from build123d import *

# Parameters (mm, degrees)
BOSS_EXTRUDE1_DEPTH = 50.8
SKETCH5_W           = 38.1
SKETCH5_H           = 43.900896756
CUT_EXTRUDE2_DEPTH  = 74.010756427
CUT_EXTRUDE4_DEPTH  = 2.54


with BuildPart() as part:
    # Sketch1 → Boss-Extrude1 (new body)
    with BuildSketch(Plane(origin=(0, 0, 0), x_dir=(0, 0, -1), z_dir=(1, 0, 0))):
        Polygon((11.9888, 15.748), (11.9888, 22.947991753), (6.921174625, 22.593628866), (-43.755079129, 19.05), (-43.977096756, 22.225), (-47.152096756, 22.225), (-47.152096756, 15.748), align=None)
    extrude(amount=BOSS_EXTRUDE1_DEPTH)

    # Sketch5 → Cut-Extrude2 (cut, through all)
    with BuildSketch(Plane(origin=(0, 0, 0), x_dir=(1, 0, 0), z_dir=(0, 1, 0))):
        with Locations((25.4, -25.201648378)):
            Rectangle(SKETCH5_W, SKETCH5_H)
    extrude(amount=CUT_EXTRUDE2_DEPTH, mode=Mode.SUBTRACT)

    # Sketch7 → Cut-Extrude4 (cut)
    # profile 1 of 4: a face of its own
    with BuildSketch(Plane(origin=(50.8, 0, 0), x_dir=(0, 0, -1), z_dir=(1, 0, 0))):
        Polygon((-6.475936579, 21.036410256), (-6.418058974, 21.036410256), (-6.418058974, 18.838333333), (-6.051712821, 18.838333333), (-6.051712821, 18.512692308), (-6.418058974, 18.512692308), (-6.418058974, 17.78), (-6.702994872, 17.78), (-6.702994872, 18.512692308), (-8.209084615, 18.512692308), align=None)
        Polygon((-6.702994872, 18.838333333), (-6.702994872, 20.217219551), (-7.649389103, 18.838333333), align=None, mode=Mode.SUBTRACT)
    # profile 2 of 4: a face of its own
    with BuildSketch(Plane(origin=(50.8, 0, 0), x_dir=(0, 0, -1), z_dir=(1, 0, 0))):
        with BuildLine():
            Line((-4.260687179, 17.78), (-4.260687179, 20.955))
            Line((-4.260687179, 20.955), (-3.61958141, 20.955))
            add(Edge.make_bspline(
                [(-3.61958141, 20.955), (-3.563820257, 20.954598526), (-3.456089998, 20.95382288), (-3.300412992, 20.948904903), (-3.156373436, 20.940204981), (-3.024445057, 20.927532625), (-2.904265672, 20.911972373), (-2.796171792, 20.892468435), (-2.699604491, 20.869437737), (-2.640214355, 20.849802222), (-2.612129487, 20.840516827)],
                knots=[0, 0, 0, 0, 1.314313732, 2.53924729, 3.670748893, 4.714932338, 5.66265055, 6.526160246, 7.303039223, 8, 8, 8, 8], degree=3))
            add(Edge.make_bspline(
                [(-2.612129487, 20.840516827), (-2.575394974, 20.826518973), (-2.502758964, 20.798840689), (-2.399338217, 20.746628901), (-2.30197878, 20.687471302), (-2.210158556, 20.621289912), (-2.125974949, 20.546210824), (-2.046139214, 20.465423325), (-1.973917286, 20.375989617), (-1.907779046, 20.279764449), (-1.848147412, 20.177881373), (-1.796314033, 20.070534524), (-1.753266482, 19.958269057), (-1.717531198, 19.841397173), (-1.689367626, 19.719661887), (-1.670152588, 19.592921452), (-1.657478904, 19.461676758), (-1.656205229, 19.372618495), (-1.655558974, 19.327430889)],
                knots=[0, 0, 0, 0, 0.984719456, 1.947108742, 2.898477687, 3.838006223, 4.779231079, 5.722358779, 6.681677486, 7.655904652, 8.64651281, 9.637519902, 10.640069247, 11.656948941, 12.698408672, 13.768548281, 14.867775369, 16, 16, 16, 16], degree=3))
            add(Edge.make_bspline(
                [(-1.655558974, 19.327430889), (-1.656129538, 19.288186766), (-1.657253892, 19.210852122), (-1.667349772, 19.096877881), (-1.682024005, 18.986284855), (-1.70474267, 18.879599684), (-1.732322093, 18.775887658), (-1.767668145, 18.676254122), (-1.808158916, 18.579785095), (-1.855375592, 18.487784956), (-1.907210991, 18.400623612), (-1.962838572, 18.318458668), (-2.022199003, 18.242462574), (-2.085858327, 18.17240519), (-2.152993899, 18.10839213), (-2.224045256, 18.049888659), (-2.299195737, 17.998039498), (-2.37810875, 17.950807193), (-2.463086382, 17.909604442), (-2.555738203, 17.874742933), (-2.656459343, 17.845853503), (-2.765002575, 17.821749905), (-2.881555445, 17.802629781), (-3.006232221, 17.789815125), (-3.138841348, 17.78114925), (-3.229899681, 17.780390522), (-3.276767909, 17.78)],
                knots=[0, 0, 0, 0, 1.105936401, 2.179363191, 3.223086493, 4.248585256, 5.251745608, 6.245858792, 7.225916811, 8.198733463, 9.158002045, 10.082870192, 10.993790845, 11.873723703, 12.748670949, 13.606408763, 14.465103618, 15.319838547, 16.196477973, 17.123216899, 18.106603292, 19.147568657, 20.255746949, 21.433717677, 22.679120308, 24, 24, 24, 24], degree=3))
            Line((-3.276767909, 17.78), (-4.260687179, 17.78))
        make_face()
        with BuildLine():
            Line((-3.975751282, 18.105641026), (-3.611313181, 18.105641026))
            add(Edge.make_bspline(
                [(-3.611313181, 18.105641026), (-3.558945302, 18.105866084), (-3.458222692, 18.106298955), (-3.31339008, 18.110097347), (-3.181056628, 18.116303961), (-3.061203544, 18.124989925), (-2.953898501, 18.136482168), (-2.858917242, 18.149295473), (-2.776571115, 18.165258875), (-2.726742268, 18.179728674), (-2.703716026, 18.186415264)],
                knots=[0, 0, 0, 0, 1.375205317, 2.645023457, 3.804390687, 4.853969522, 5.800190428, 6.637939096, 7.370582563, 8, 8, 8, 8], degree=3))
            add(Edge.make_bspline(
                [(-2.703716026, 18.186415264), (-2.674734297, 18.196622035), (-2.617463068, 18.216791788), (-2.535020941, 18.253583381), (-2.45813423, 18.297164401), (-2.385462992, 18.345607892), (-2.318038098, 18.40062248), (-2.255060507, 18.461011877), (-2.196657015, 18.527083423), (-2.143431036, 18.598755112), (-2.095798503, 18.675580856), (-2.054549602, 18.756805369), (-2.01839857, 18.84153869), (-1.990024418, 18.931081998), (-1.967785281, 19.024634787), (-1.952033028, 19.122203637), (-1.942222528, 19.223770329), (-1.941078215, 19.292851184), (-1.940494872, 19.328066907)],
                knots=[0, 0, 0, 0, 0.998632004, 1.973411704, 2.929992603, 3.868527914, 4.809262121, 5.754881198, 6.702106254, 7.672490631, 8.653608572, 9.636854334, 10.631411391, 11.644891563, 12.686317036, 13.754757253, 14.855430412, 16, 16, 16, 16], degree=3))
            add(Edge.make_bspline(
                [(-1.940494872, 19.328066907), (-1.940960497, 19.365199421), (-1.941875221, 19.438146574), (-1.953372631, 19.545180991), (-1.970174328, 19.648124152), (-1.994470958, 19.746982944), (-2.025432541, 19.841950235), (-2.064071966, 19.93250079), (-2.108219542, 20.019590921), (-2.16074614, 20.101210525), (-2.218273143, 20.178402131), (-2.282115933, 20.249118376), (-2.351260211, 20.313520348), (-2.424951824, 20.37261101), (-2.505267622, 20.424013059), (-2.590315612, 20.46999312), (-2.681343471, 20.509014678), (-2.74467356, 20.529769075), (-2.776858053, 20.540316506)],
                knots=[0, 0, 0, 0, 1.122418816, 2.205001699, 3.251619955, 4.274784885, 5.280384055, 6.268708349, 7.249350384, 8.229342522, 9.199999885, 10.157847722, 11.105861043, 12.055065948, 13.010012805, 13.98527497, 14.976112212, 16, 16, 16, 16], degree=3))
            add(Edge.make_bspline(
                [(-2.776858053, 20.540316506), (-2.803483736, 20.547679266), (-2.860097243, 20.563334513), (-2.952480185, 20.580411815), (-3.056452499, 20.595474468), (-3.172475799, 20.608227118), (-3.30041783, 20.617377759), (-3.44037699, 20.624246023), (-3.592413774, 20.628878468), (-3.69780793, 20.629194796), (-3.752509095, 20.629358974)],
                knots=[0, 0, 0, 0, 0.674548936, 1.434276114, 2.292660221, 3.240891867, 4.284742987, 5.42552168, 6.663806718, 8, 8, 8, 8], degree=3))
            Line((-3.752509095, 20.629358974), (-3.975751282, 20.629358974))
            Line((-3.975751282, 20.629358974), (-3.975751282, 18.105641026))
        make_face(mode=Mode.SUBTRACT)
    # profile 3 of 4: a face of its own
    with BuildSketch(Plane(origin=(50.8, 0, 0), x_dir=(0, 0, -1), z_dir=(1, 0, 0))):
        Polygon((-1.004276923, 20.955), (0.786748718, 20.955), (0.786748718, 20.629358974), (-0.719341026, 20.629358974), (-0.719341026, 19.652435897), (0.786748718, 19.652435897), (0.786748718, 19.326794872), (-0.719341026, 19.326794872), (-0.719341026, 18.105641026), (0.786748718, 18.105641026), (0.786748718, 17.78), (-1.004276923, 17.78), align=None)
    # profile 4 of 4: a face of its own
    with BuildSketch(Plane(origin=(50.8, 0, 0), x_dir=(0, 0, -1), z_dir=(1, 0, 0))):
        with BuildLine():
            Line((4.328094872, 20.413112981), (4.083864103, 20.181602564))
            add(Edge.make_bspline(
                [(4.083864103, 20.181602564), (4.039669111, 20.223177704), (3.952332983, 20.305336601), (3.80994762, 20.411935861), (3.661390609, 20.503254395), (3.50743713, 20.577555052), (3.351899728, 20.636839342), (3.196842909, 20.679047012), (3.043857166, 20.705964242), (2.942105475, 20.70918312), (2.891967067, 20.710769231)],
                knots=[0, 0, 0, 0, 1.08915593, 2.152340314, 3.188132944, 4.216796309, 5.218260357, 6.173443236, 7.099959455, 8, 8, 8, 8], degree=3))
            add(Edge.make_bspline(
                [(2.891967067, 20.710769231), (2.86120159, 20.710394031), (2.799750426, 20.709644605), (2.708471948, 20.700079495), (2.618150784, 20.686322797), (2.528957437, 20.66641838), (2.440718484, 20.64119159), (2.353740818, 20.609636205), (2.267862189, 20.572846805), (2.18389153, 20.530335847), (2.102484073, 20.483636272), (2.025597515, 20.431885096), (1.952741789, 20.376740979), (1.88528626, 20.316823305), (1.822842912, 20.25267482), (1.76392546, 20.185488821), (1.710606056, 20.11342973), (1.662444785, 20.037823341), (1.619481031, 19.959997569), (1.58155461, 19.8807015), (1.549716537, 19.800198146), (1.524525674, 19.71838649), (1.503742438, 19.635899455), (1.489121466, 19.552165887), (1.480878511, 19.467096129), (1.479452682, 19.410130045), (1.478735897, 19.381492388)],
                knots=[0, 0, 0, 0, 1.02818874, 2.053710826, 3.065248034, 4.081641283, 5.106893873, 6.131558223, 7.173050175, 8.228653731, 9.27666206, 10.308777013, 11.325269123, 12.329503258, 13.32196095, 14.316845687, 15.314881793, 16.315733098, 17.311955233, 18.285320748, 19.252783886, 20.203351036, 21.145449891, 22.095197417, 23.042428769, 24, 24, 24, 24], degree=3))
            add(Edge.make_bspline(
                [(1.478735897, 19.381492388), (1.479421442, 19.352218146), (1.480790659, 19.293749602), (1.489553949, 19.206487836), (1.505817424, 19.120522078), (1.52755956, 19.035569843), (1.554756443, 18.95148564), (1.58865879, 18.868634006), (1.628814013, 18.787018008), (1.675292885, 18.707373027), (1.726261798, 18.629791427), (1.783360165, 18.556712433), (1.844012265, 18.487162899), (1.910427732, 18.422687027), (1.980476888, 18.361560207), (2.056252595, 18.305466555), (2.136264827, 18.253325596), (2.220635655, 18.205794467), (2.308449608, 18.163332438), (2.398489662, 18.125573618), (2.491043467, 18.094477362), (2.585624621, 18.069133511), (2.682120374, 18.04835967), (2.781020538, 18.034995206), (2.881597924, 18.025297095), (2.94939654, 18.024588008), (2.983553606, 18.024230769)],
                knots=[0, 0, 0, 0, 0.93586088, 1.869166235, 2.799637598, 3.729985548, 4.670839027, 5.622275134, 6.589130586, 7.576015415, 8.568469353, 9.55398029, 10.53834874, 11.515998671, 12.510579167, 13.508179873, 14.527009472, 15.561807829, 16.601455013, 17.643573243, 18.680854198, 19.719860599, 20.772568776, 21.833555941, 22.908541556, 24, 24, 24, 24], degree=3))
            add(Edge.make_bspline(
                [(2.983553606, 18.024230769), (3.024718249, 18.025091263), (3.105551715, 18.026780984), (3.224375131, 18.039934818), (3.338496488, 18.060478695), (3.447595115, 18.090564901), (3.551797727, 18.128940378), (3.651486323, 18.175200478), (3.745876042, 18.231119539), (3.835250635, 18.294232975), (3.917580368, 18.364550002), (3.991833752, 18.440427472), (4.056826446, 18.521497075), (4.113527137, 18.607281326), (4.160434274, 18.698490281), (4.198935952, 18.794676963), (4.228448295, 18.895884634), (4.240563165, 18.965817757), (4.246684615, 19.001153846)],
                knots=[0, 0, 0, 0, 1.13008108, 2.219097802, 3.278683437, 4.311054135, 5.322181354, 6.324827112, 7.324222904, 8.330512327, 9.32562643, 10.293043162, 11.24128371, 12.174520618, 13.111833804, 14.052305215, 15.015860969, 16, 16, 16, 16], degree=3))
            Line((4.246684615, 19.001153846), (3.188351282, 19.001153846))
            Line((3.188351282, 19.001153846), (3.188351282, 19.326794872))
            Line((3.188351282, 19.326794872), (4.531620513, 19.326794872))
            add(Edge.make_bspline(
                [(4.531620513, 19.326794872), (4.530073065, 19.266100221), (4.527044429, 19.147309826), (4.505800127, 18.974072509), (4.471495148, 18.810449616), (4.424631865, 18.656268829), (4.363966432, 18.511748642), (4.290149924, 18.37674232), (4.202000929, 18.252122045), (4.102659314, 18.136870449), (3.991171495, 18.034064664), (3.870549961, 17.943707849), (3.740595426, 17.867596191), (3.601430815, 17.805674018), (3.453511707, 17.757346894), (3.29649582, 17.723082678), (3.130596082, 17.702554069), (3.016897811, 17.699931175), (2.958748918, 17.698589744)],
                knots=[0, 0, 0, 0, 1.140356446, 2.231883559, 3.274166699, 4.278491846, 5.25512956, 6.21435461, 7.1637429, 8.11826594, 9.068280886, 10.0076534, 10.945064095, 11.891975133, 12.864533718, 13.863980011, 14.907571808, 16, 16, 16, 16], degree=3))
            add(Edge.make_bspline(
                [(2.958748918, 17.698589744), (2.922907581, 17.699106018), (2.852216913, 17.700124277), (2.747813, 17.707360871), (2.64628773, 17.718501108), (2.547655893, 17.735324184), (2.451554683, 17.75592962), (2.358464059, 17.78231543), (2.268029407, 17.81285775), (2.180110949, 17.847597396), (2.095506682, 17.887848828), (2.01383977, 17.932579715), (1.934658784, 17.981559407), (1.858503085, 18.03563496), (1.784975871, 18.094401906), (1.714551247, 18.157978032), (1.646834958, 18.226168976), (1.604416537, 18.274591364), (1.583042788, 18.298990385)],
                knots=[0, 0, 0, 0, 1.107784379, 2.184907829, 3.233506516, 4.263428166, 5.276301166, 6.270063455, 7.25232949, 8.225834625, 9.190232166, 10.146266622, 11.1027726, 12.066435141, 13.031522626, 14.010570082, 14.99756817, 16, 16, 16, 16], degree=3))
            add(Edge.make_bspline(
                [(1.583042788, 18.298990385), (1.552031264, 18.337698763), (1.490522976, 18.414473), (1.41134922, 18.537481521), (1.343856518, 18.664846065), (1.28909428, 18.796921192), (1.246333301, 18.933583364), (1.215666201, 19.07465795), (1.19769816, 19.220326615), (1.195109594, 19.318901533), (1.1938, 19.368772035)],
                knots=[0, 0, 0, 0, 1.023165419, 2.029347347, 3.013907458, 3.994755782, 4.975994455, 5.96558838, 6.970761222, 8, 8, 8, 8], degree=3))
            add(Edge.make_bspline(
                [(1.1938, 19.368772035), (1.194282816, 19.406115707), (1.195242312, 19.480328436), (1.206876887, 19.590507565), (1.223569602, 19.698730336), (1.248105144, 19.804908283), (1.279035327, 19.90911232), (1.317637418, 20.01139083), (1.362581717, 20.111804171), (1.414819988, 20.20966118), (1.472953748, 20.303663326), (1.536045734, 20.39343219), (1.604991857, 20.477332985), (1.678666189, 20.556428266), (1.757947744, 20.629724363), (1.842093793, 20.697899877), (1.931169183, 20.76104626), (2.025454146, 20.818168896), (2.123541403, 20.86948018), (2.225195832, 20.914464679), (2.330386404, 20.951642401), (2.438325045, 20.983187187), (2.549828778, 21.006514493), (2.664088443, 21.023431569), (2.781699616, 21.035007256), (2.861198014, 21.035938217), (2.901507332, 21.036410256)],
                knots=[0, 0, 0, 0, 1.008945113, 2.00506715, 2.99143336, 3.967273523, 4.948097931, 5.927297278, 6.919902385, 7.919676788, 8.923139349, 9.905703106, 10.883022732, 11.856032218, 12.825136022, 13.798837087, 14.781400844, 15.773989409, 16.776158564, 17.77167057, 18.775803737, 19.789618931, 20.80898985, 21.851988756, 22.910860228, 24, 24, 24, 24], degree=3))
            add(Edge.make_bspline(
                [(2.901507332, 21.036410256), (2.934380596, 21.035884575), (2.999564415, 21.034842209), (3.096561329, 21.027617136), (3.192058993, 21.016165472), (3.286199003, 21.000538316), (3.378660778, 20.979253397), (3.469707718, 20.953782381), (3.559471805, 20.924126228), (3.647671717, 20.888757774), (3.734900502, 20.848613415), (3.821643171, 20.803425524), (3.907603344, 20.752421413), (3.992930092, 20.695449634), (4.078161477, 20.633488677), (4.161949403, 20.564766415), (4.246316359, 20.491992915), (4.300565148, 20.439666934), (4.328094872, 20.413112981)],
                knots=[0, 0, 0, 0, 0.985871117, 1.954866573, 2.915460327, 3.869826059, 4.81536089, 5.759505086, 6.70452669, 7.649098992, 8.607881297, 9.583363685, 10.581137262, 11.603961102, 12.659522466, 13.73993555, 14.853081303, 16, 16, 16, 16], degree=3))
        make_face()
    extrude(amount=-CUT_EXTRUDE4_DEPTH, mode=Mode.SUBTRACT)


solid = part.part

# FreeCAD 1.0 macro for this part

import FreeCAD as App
import Part
import Sketcher
Q = App.Units.Quantity

doc = App.newDocument("Part")
body = doc.addObject("PartDesign::Body", "Body")

# Sketch on YZ plane
sketch1 = doc.addObject("Sketcher::SketchObject", "Sketch")
body.addObject(sketch1)
sketch1.AttachmentSupport = (doc.YZ_Plane, [""])
sketch1.MapMode = "FlatFace"
sketch1.addGeometry(Part.LineSegment(App.Vector(15.7, -12, 0), App.Vector(22.9, -12, 0)), False)
sketch1.addGeometry(Part.LineSegment(App.Vector(22.9, -12, 0), App.Vector(22.6, -6.9, 0)), False)
sketch1.addGeometry(Part.LineSegment(App.Vector(22.6, -6.9, 0), App.Vector(19.1, 43.8, 0)), False)
sketch1.addGeometry(Part.LineSegment(App.Vector(19.1, 43.8, 0), App.Vector(22.2, 44, 0)), False)
sketch1.addGeometry(Part.LineSegment(App.Vector(22.2, 44, 0), App.Vector(22.2, 47.2, 0)), False)
sketch1.addGeometry(Part.LineSegment(App.Vector(22.2, 47.2, 0), App.Vector(15.7, 47.2, 0)), False)
sketch1.addGeometry(Part.LineSegment(App.Vector(15.7, 47.2, 0), App.Vector(15.7, -12, 0)), False)
sketch1.addConstraint(Sketcher.Constraint("Coincident", 0, 2, 1, 1))
sketch1.addConstraint(Sketcher.Constraint("Coincident", 1, 2, 2, 1))
sketch1.addConstraint(Sketcher.Constraint("Coincident", 2, 2, 3, 1))
sketch1.addConstraint(Sketcher.Constraint("Coincident", 3, 2, 4, 1))
sketch1.addConstraint(Sketcher.Constraint("Coincident", 4, 2, 5, 1))
sketch1.addConstraint(Sketcher.Constraint("Coincident", 5, 2, 6, 1))
sketch1.addConstraint(Sketcher.Constraint("Coincident", 6, 2, 0, 1))
sketch1.addConstraint(Sketcher.Constraint("Horizontal", 0))
sketch1.addConstraint(Sketcher.Constraint("Vertical", 4))
sketch1.addConstraint(Sketcher.Constraint("Horizontal", 5))
sketch1.addConstraint(Sketcher.Constraint("Vertical", 6))
sketch1.addConstraint(Sketcher.Constraint("Parallel", 1, 2))
sketch1.addConstraint(Sketcher.Constraint("Perpendicular", 2, 3))
sketch1.addConstraint(Sketcher.Constraint("Distance", 2, Q("2 in")))
sketch1.addConstraint(Sketcher.Constraint("Angle", 1, Q("94 deg")))
sketch1.addConstraint(Sketcher.Constraint("Distance", 1, Q("0.2 in")))
sketch1.addConstraint(Sketcher.Constraint("DistanceX", 5, 2, 5, 1, Q("0.255 in")))
sketch1.addConstraint(Sketcher.Constraint("DistanceY", 4, 1, 4, 2, Q("0.125 in")))
sketch1.addConstraint(Sketcher.Constraint("DistanceX", -1, 1, 2, 2, Q("0.75 in")))
sketch1.addConstraint(Sketcher.Constraint("DistanceX", -1, 1, 5, 2, Q("0.62 in")))
sketch1.addConstraint(Sketcher.Constraint("DistanceY", 0, 2, -1, 1, Q("0.472 in")))
pad1 = doc.addObject("PartDesign::Pad", "Pad")
body.addObject(pad1)
pad1.Profile = sketch1
pad1.Length = Q("2 in")

# Sketch on XZ plane
sketch2 = doc.addObject("Sketcher::SketchObject", "Sketch001")
body.addObject(sketch2)
sketch2.AttachmentSupport = (doc.XZ_Plane, [""])
sketch2.MapMode = "FlatFace"
sketch2.addGeometry(Part.LineSegment(App.Vector(6, 3, 0), App.Vector(6, 47, 0)), False)
sketch2.addGeometry(Part.LineSegment(App.Vector(6, 47, 0), App.Vector(44, 47, 0)), False)
sketch2.addGeometry(Part.LineSegment(App.Vector(44, 47, 0), App.Vector(44, 3, 0)), False)
sketch2.addGeometry(Part.LineSegment(App.Vector(44, 3, 0), App.Vector(6, 3, 0)), False)
sketch2.addConstraint(Sketcher.Constraint("Coincident", 0, 2, 1, 1))
sketch2.addConstraint(Sketcher.Constraint("Coincident", 1, 2, 2, 1))
sketch2.addConstraint(Sketcher.Constraint("Coincident", 2, 2, 3, 1))
sketch2.addConstraint(Sketcher.Constraint("Coincident", 3, 2, 0, 1))
sketch2.addConstraint(Sketcher.Constraint("Vertical", 0))
sketch2.addConstraint(Sketcher.Constraint("Horizontal", 1))
sketch2.addConstraint(Sketcher.Constraint("Vertical", 2))
sketch2.addConstraint(Sketcher.Constraint("Horizontal", 3))
sketch2.addConstraint(Sketcher.Constraint("DistanceX", 1, 1, 1, 2, Q("1.5 in")))
sketch2.addConstraint(Sketcher.Constraint("DistanceX", -1, 1, 0, 2, Q("0.25 in")))
sketch2.addConstraint(Sketcher.Constraint("DistanceY", -1, 1, 2, 2, Q("0.128 in")))
sketch2.addConstraint(Sketcher.Constraint("DistanceY", 0, 1, 0, 2, 43.900897))
pocket1 = doc.addObject("PartDesign::Pocket", "Pocket")
body.addObject(pocket1)
pocket1.Profile = sketch2
pocket1.Type = "ThroughAll"

# Sketch on YZ plane
sketch3 = doc.addObject("Sketcher::SketchObject", "Sketch002")
body.addObject(sketch3)
sketch3.AttachmentSupport = (doc.YZ_Plane, [""])
sketch3.MapMode = "FlatFace"
sketch3.AttachmentOffset = App.Placement(App.Vector(0, 0, 2 * 25.4), App.Rotation())
sketch3.addGeometry(Part.LineSegment(App.Vector(21.03641, 6.418059, 0), App.Vector(21.03641, 6.475937, 0)), False)
sketch3.addGeometry(Part.LineSegment(App.Vector(21.03641, 6.475937, 0), App.Vector(18.512692, 8.209085, 0)), False)
sketch3.addGeometry(Part.LineSegment(App.Vector(18.512692, 8.209085, 0), App.Vector(18.512692, 6.702995, 0)), False)
sketch3.addGeometry(Part.LineSegment(App.Vector(18.512692, 6.702995, 0), App.Vector(17.78, 6.702995, 0)), False)
sketch3.addGeometry(Part.LineSegment(App.Vector(17.78, 6.702995, 0), App.Vector(17.78, 6.418059, 0)), False)
sketch3.addGeometry(Part.LineSegment(App.Vector(17.78, 6.418059, 0), App.Vector(18.512692, 6.418059, 0)), False)
sketch3.addGeometry(Part.LineSegment(App.Vector(18.512692, 6.418059, 0), App.Vector(18.512692, 6.051713, 0)), False)
sketch3.addGeometry(Part.LineSegment(App.Vector(18.512692, 6.051713, 0), App.Vector(18.838333, 6.051713, 0)), False)
sketch3.addGeometry(Part.LineSegment(App.Vector(18.838333, 6.051713, 0), App.Vector(18.838333, 6.418059, 0)), False)
sketch3.addGeometry(Part.LineSegment(App.Vector(18.838333, 6.418059, 0), App.Vector(21.03641, 6.418059, 0)), False)
sketch3.addGeometry(Part.LineSegment(App.Vector(18.838333, 6.702995, 0), App.Vector(18.838333, 7.649389, 0)), False)
sketch3.addGeometry(Part.LineSegment(App.Vector(18.838333, 7.649389, 0), App.Vector(20.21722, 6.702995, 0)), False)
sketch3.addGeometry(Part.LineSegment(App.Vector(20.21722, 6.702995, 0), App.Vector(18.838333, 6.702995, 0)), False)
sketch3.addGeometry(Part.LineSegment(App.Vector(20.955, 4.260687, 0), App.Vector(17.78, 4.260687, 0)), False)
sketch3.addGeometry(Part.LineSegment(App.Vector(17.78, 4.260687, 0), App.Vector(17.78, 3.276768, 0)), False)
sketch3.addGeometry(Part.BSplineCurve([App.Vector(19.327431, 1.655559, 0), App.Vector(19.288187, 1.65613, 0), App.Vector(19.210852, 1.657254, 0), App.Vector(19.096878, 1.66735, 0), App.Vector(18.986285, 1.682024, 0), App.Vector(18.8796, 1.704743, 0), App.Vector(18.775888, 1.732322, 0), App.Vector(18.676254, 1.767668, 0), App.Vector(18.579785, 1.808159, 0), App.Vector(18.487785, 1.855376, 0), App.Vector(18.400624, 1.907211, 0), App.Vector(18.318459, 1.962839, 0), App.Vector(18.242463, 2.022199, 0), App.Vector(18.172405, 2.085858, 0), App.Vector(18.108392, 2.152994, 0), App.Vector(18.049889, 2.224045, 0), App.Vector(17.998039, 2.299196, 0), App.Vector(17.950807, 2.378109, 0), App.Vector(17.909604, 2.463086, 0), App.Vector(17.874743, 2.555738, 0), App.Vector(17.845854, 2.656459, 0), App.Vector(17.82175, 2.765003, 0), App.Vector(17.80263, 2.881555, 0), App.Vector(17.789815, 3.006232, 0), App.Vector(17.781149, 3.138841, 0), App.Vector(17.780391, 3.2299, 0), App.Vector(17.78, 3.276768, 0)], [4, 1, 1, 1, 1, 1, 1, 1, 1, 1, 1, 1, 1, 1, 1, 1, 1, 1, 1, 1, 1, 1, 1, 1, 4], [0, 1.105936401, 2.179363191, 3.223086493, 4.248585256, 5.251745608, 6.245858792, 7.225916811, 8.198733463, 9.158002045, 10.082870192, 10.993790845, 11.873723703, 12.748670949, 13.606408763, 14.465103618, 15.319838547, 16.196477973, 17.123216899, 18.106603292, 19.147568657, 20.255746949, 21.433717677, 22.679120308, 24], False, 3, [1, 1, 1, 1, 1, 1, 1, 1, 1, 1, 1, 1, 1, 1, 1, 1, 1, 1, 1, 1, 1, 1, 1, 1, 1, 1, 1], False), False)
sketch3.addGeometry(Part.BSplineCurve([App.Vector(20.840517, 2.612129, 0), App.Vector(20.826519, 2.575395, 0), App.Vector(20.798841, 2.502759, 0), App.Vector(20.746629, 2.399338, 0), App.Vector(20.687471, 2.301979, 0), App.Vector(20.62129, 2.210159, 0), App.Vector(20.546211, 2.125975, 0), App.Vector(20.465423, 2.046139, 0), App.Vector(20.37599, 1.973917, 0), App.Vector(20.279764, 1.907779, 0), App.Vector(20.177881, 1.848147, 0), App.Vector(20.070535, 1.796314, 0), App.Vector(19.958269, 1.753266, 0), App.Vector(19.841397, 1.717531, 0), App.Vector(19.719662, 1.689368, 0), App.Vector(19.592921, 1.670153, 0), App.Vector(19.461677, 1.657479, 0), App.Vector(19.372618, 1.656205, 0), App.Vector(19.327431, 1.655559, 0)], [4, 1, 1, 1, 1, 1, 1, 1, 1, 1, 1, 1, 1, 1, 1, 1, 4], [0, 0.984719456, 1.947108742, 2.898477687, 3.838006223, 4.779231079, 5.722358779, 6.681677486, 7.655904652, 8.64651281, 9.637519902, 10.640069247, 11.656948941, 12.698408672, 13.768548281, 14.867775369, 16], False, 3, [1, 1, 1, 1, 1, 1, 1, 1, 1, 1, 1, 1, 1, 1, 1, 1, 1, 1, 1], False), False)
sketch3.addGeometry(Part.BSplineCurve([App.Vector(20.955, 3.619581, 0), App.Vector(20.954599, 3.56382, 0), App.Vector(20.953823, 3.45609, 0), App.Vector(20.948905, 3.300413, 0), App.Vector(20.940205, 3.156373, 0), App.Vector(20.927533, 3.024445, 0), App.Vector(20.911972, 2.904266, 0), App.Vector(20.892468, 2.796172, 0), App.Vector(20.869438, 2.699604, 0), App.Vector(20.849802, 2.640214, 0), App.Vector(20.840517, 2.612129, 0)], [4, 1, 1, 1, 1, 1, 1, 1, 4], [0, 1.314313732, 2.53924729, 3.670748893, 4.714932338, 5.66265055, 6.526160246, 7.303039223, 8], False, 3, [1, 1, 1, 1, 1, 1, 1, 1, 1, 1, 1], False), False)
sketch3.addGeometry(Part.LineSegment(App.Vector(20.955, 3.619581, 0), App.Vector(20.955, 4.260687, 0)), False)
sketch3.addGeometry(Part.LineSegment(App.Vector(18.105641, 3.975751, 0), App.Vector(20.629359, 3.975751, 0)), False)
sketch3.addGeometry(Part.LineSegment(App.Vector(20.629359, 3.975751, 0), App.Vector(20.629359, 3.752509, 0)), False)
sketch3.addGeometry(Part.BSplineCurve([App.Vector(20.540317, 2.776858, 0), App.Vector(20.547679, 2.803484, 0), App.Vector(20.563335, 2.860097, 0), App.Vector(20.580412, 2.95248, 0), App.Vector(20.595474, 3.056452, 0), App.Vector(20.608227, 3.172476, 0), App.Vector(20.617378, 3.300418, 0), App.Vector(20.624246, 3.440377, 0), App.Vector(20.628878, 3.592414, 0), App.Vector(20.629195, 3.697808, 0), App.Vector(20.629359, 3.752509, 0)], [4, 1, 1, 1, 1, 1, 1, 1, 4], [0, 0.674548936, 1.434276114, 2.292660221, 3.240891867, 4.284742987, 5.42552168, 6.663806718, 8], False, 3, [1, 1, 1, 1, 1, 1, 1, 1, 1, 1, 1], False), False)
sketch3.addGeometry(Part.BSplineCurve([App.Vector(19.328067, 1.940495, 0), App.Vector(19.365199, 1.94096, 0), App.Vector(19.438147, 1.941875, 0), App.Vector(19.545181, 1.953373, 0), App.Vector(19.648124, 1.970174, 0), App.Vector(19.746983, 1.994471, 0), App.Vector(19.84195, 2.025433, 0), App.Vector(19.932501, 2.064072, 0), App.Vector(20.019591, 2.10822, 0), App.Vector(20.101211, 2.160746, 0), App.Vector(20.178402, 2.218273, 0), App.Vector(20.249118, 2.282116, 0), App.Vector(20.31352, 2.35126, 0), App.Vector(20.372611, 2.424952, 0), App.Vector(20.424013, 2.505268, 0), App.Vector(20.469993, 2.590316, 0), App.Vector(20.509015, 2.681343, 0), App.Vector(20.529769, 2.744674, 0), App.Vector(20.540317, 2.776858, 0)], [4, 1, 1, 1, 1, 1, 1, 1, 1, 1, 1, 1, 1, 1, 1, 1, 4], [0, 1.122418816, 2.205001699, 3.251619955, 4.274784885, 5.280384055, 6.268708349, 7.249350384, 8.229342522, 9.199999885, 10.157847722, 11.105861043, 12.055065948, 13.010012805, 13.98527497, 14.976112212, 16], False, 3, [1, 1, 1, 1, 1, 1, 1, 1, 1, 1, 1, 1, 1, 1, 1, 1, 1, 1, 1], False), False)
sketch3.addGeometry(Part.BSplineCurve([App.Vector(18.186415, 2.703716, 0), App.Vector(18.196622, 2.674734, 0), App.Vector(18.216792, 2.617463, 0), App.Vector(18.253583, 2.535021, 0), App.Vector(18.297164, 2.458134, 0), App.Vector(18.345608, 2.385463, 0), App.Vector(18.400622, 2.318038, 0), App.Vector(18.461012, 2.255061, 0), App.Vector(18.527083, 2.196657, 0), App.Vector(18.598755, 2.143431, 0), App.Vector(18.675581, 2.095799, 0), App.Vector(18.756805, 2.05455, 0), App.Vector(18.841539, 2.018399, 0), App.Vector(18.931082, 1.990024, 0), App.Vector(19.024635, 1.967785, 0), App.Vector(19.122204, 1.952033, 0), App.Vector(19.22377, 1.942223, 0), App.Vector(19.292851, 1.941078, 0), App.Vector(19.328067, 1.940495, 0)], [4, 1, 1, 1, 1, 1, 1, 1, 1, 1, 1, 1, 1, 1, 1, 1, 4], [0, 0.998632004, 1.973411704, 2.929992603, 3.868527914, 4.809262121, 5.754881198, 6.702106254, 7.672490631, 8.653608572, 9.636854334, 10.631411391, 11.644891563, 12.686317036, 13.754757253, 14.855430412, 16], False, 3, [1, 1, 1, 1, 1, 1, 1, 1, 1, 1, 1, 1, 1, 1, 1, 1, 1, 1, 1], False), False)
sketch3.addGeometry(Part.BSplineCurve([App.Vector(18.105641, 3.611313, 0), App.Vector(18.105866, 3.558945, 0), App.Vector(18.106299, 3.458223, 0), App.Vector(18.110097, 3.31339, 0), App.Vector(18.116304, 3.181057, 0), App.Vector(18.12499, 3.061204, 0), App.Vector(18.136482, 2.953899, 0), App.Vector(18.149295, 2.858917, 0), App.Vector(18.165259, 2.776571, 0), App.Vector(18.179729, 2.726742, 0), App.Vector(18.186415, 2.703716, 0)], [4, 1, 1, 1, 1, 1, 1, 1, 4], [0, 1.375205317, 2.645023457, 3.804390687, 4.853969522, 5.800190428, 6.637939096, 7.370582563, 8], False, 3, [1, 1, 1, 1, 1, 1, 1, 1, 1, 1, 1], False), False)
sketch3.addGeometry(Part.LineSegment(App.Vector(18.105641, 3.611313, 0), App.Vector(18.105641, 3.975751, 0)), False)
sketch3.addGeometry(Part.LineSegment(App.Vector(20.955, -0.786749, 0), App.Vector(20.955, 1.004277, 0)), False)
sketch3.addGeometry(Part.LineSegment(App.Vector(20.955, 1.004277, 0), App.Vector(17.78, 1.004277, 0)), False)
sketch3.addGeometry(Part.LineSegment(App.Vector(17.78, 1.004277, 0), App.Vector(17.78, -0.786749, 0)), False)
sketch3.addGeometry(Part.LineSegment(App.Vector(17.78, -0.786749, 0), App.Vector(18.105641, -0.786749, 0)), False)
sketch3.addGeometry(Part.LineSegment(App.Vector(18.105641, -0.786749, 0), App.Vector(18.105641, 0.719341, 0)), False)
sketch3.addGeometry(Part.LineSegment(App.Vector(18.105641, 0.719341, 0), App.Vector(19.326795, 0.719341, 0)), False)
sketch3.addGeometry(Part.LineSegment(App.Vector(19.326795, 0.719341, 0), App.Vector(19.326795, -0.786749, 0)), False)
sketch3.addGeometry(Part.LineSegment(App.Vector(19.326795, -0.786749, 0), App.Vector(19.652436, -0.786749, 0)), False)
sketch3.addGeometry(Part.LineSegment(App.Vector(19.652436, -0.786749, 0), App.Vector(19.652436, 0.719341, 0)), False)
sketch3.addGeometry(Part.LineSegment(App.Vector(19.652436, 0.719341, 0), App.Vector(20.629359, 0.719341, 0)), False)
sketch3.addGeometry(Part.LineSegment(App.Vector(20.629359, 0.719341, 0), App.Vector(20.629359, -0.786749, 0)), False)
sketch3.addGeometry(Part.LineSegment(App.Vector(20.629359, -0.786749, 0), App.Vector(20.955, -0.786749, 0)), False)
sketch3.addGeometry(Part.LineSegment(App.Vector(20.181603, -4.083864, 0), App.Vector(20.413113, -4.328095, 0)), False)
sketch3.addGeometry(Part.BSplineCurve([App.Vector(21.03641, -2.901507, 0), App.Vector(21.035885, -2.934381, 0), App.Vector(21.034842, -2.999564, 0), App.Vector(21.027617, -3.096561, 0), App.Vector(21.016165, -3.192059, 0), App.Vector(21.000538, -3.286199, 0), App.Vector(20.979253, -3.378661, 0), App.Vector(20.953782, -3.469708, 0), App.Vector(20.924126, -3.559472, 0), App.Vector(20.888758, -3.647672, 0), App.Vector(20.848613, -3.734901, 0), App.Vector(20.803426, -3.821643, 0), App.Vector(20.752421, -3.907603, 0), App.Vector(20.69545, -3.99293, 0), App.Vector(20.633489, -4.078161, 0), App.Vector(20.564766, -4.161949, 0), App.Vector(20.491993, -4.246316, 0), App.Vector(20.439667, -4.300565, 0), App.Vector(20.413113, -4.328095, 0)], [4, 1, 1, 1, 1, 1, 1, 1, 1, 1, 1, 1, 1, 1, 1, 1, 4], [0, 0.985871117, 1.954866573, 2.915460327, 3.869826059, 4.81536089, 5.759505086, 6.70452669, 7.649098992, 8.607881297, 9.583363685, 10.581137262, 11.603961102, 12.659522466, 13.73993555, 14.853081303, 16], False, 3, [1, 1, 1, 1, 1, 1, 1, 1, 1, 1, 1, 1, 1, 1, 1, 1, 1, 1, 1], False), False)
sketch3.addGeometry(Part.BSplineCurve([App.Vector(19.368772, -1.1938, 0), App.Vector(19.406116, -1.194283, 0), App.Vector(19.480328, -1.195242, 0), App.Vector(19.590508, -1.206877, 0), App.Vector(19.69873, -1.22357, 0), App.Vector(19.804908, -1.248105, 0), App.Vector(19.909112, -1.279035, 0), App.Vector(20.011391, -1.317637, 0), App.Vector(20.111804, -1.362582, 0), App.Vector(20.209661, -1.41482, 0), App.Vector(20.303663, -1.472954, 0), App.Vector(20.393432, -1.536046, 0), App.Vector(20.477333, -1.604992, 0), App.Vector(20.556428, -1.678666, 0), App.Vector(20.629724, -1.757948, 0), App.Vector(20.6979, -1.842094, 0), App.Vector(20.761046, -1.931169, 0), App.Vector(20.818169, -2.025454, 0), App.Vector(20.86948, -2.123541, 0), App.Vector(20.914465, -2.225196, 0), App.Vector(20.951642, -2.330386, 0), App.Vector(20.983187, -2.438325, 0), App.Vector(21.006514, -2.549829, 0), App.Vector(21.023432, -2.664088, 0), App.Vector(21.035007, -2.7817, 0), App.Vector(21.035938, -2.861198, 0), App.Vector(21.03641, -2.901507, 0)], [4, 1, 1, 1, 1, 1, 1, 1, 1, 1, 1, 1, 1, 1, 1, 1, 1, 1, 1, 1, 1, 1, 1, 1, 4], [0, 1.008945113, 2.00506715, 2.99143336, 3.967273523, 4.948097931, 5.927297278, 6.919902385, 7.919676788, 8.923139349, 9.905703106, 10.883022732, 11.856032218, 12.825136022, 13.798837087, 14.781400844, 15.773989409, 16.776158564, 17.77167057, 18.775803737, 19.789618931, 20.80898985, 21.851988756, 22.910860228, 24], False, 3, [1, 1, 1, 1, 1, 1, 1, 1, 1, 1, 1, 1, 1, 1, 1, 1, 1, 1, 1, 1, 1, 1, 1, 1, 1, 1, 1], False), False)
sketch3.addGeometry(Part.BSplineCurve([App.Vector(18.29899, -1.583043, 0), App.Vector(18.337699, -1.552031, 0), App.Vector(18.414473, -1.490523, 0), App.Vector(18.537482, -1.411349, 0), App.Vector(18.664846, -1.343857, 0), App.Vector(18.796921, -1.289094, 0), App.Vector(18.933583, -1.246333, 0), App.Vector(19.074658, -1.215666, 0), App.Vector(19.220327, -1.197698, 0), App.Vector(19.318902, -1.19511, 0), App.Vector(19.368772, -1.1938, 0)], [4, 1, 1, 1, 1, 1, 1, 1, 4], [0, 1.023165419, 2.029347347, 3.013907458, 3.994755782, 4.975994455, 5.96558838, 6.970761222, 8], False, 3, [1, 1, 1, 1, 1, 1, 1, 1, 1, 1, 1], False), False)
sketch3.addGeometry(Part.BSplineCurve([App.Vector(17.69859, -2.958749, 0), App.Vector(17.699106, -2.922908, 0), App.Vector(17.700124, -2.852217, 0), App.Vector(17.707361, -2.747813, 0), App.Vector(17.718501, -2.646288, 0), App.Vector(17.735324, -2.547656, 0), App.Vector(17.75593, -2.451555, 0), App.Vector(17.782315, -2.358464, 0), App.Vector(17.812858, -2.268029, 0), App.Vector(17.847597, -2.180111, 0), App.Vector(17.887849, -2.095507, 0), App.Vector(17.93258, -2.01384, 0), App.Vector(17.981559, -1.934659, 0), App.Vector(18.035635, -1.858503, 0), App.Vector(18.094402, -1.784976, 0), App.Vector(18.157978, -1.714551, 0), App.Vector(18.226169, -1.646835, 0), App.Vector(18.274591, -1.604417, 0), App.Vector(18.29899, -1.583043, 0)], [4, 1, 1, 1, 1, 1, 1, 1, 1, 1, 1, 1, 1, 1, 1, 1, 4], [0, 1.107784379, 2.184907829, 3.233506516, 4.263428166, 5.276301166, 6.270063455, 7.25232949, 8.225834625, 9.190232166, 10.146266622, 11.1027726, 12.066435141, 13.031522626, 14.010570082, 14.99756817, 16], False, 3, [1, 1, 1, 1, 1, 1, 1, 1, 1, 1, 1, 1, 1, 1, 1, 1, 1, 1, 1], False), False)
sketch3.addGeometry(Part.BSplineCurve([App.Vector(19.326795, -4.531621, 0), App.Vector(19.2661, -4.530073, 0), App.Vector(19.14731, -4.527044, 0), App.Vector(18.974073, -4.5058, 0), App.Vector(18.81045, -4.471495, 0), App.Vector(18.656269, -4.424632, 0), App.Vector(18.511749, -4.363966, 0), App.Vector(18.376742, -4.29015, 0), App.Vector(18.252122, -4.202001, 0), App.Vector(18.13687, -4.102659, 0), App.Vector(18.034065, -3.991171, 0), App.Vector(17.943708, -3.87055, 0), App.Vector(17.867596, -3.740595, 0), App.Vector(17.805674, -3.601431, 0), App.Vector(17.757347, -3.453512, 0), App.Vector(17.723083, -3.296496, 0), App.Vector(17.702554, -3.130596, 0), App.Vector(17.699931, -3.016898, 0), App.Vector(17.69859, -2.958749, 0)], [4, 1, 1, 1, 1, 1, 1, 1, 1, 1, 1, 1, 1, 1, 1, 1, 4], [0, 1.140356446, 2.231883559, 3.274166699, 4.278491846, 5.25512956, 6.21435461, 7.1637429, 8.11826594, 9.068280886, 10.0076534, 10.945064095, 11.891975133, 12.864533718, 13.863980011, 14.907571808, 16], False, 3, [1, 1, 1, 1, 1, 1, 1, 1, 1, 1, 1, 1, 1, 1, 1, 1, 1, 1, 1], False), False)
sketch3.addGeometry(Part.LineSegment(App.Vector(19.326795, -4.531621, 0), App.Vector(19.326795, -3.188351, 0)), False)
sketch3.addGeometry(Part.LineSegment(App.Vector(19.326795, -3.188351, 0), App.Vector(19.001154, -3.188351, 0)), False)
sketch3.addGeometry(Part.LineSegment(App.Vector(19.001154, -3.188351, 0), App.Vector(19.001154, -4.246685, 0)), False)
sketch3.addGeometry(Part.BSplineCurve([App.Vector(18.024231, -2.983554, 0), App.Vector(18.025091, -3.024718, 0), App.Vector(18.026781, -3.105552, 0), App.Vector(18.039935, -3.224375, 0), App.Vector(18.060479, -3.338496, 0), App.Vector(18.090565, -3.447595, 0), App.Vector(18.12894, -3.551798, 0), App.Vector(18.1752, -3.651486, 0), App.Vector(18.23112, -3.745876, 0), App.Vector(18.294233, -3.835251, 0), App.Vector(18.36455, -3.91758, 0), App.Vector(18.440427, -3.991834, 0), App.Vector(18.521497, -4.056826, 0), App.Vector(18.607281, -4.113527, 0), App.Vector(18.69849, -4.160434, 0), App.Vector(18.794677, -4.198936, 0), App.Vector(18.895885, -4.228448, 0), App.Vector(18.965818, -4.240563, 0), App.Vector(19.001154, -4.246685, 0)], [4, 1, 1, 1, 1, 1, 1, 1, 1, 1, 1, 1, 1, 1, 1, 1, 4], [0, 1.13008108, 2.219097802, 3.278683437, 4.311054135, 5.322181354, 6.324827112, 7.324222904, 8.330512327, 9.32562643, 10.293043162, 11.24128371, 12.174520618, 13.111833804, 14.052305215, 15.015860969, 16], False, 3, [1, 1, 1, 1, 1, 1, 1, 1, 1, 1, 1, 1, 1, 1, 1, 1, 1, 1, 1], False), False)
sketch3.addGeometry(Part.BSplineCurve([App.Vector(19.381492, -1.478736, 0), App.Vector(19.352218, -1.479421, 0), App.Vector(19.29375, -1.480791, 0), App.Vector(19.206488, -1.489554, 0), App.Vector(19.120522, -1.505817, 0), App.Vector(19.03557, -1.52756, 0), App.Vector(18.951486, -1.554756, 0), App.Vector(18.868634, -1.588659, 0), App.Vector(18.787018, -1.628814, 0), App.Vector(18.707373, -1.675293, 0), App.Vector(18.629791, -1.726262, 0), App.Vector(18.556712, -1.78336, 0), App.Vector(18.487163, -1.844012, 0), App.Vector(18.422687, -1.910428, 0), App.Vector(18.36156, -1.980477, 0), App.Vector(18.305467, -2.056253, 0), App.Vector(18.253326, -2.136265, 0), App.Vector(18.205794, -2.220636, 0), App.Vector(18.163332, -2.30845, 0), App.Vector(18.125574, -2.39849, 0), App.Vector(18.094477, -2.491043, 0), App.Vector(18.069134, -2.585625, 0), App.Vector(18.04836, -2.68212, 0), App.Vector(18.034995, -2.781021, 0), App.Vector(18.025297, -2.881598, 0), App.Vector(18.024588, -2.949397, 0), App.Vector(18.024231, -2.983554, 0)], [4, 1, 1, 1, 1, 1, 1, 1, 1, 1, 1, 1, 1, 1, 1, 1, 1, 1, 1, 1, 1, 1, 1, 1, 4], [0, 0.93586088, 1.869166235, 2.799637598, 3.729985548, 4.670839027, 5.622275134, 6.589130586, 7.576015415, 8.568469353, 9.55398029, 10.53834874, 11.515998671, 12.510579167, 13.508179873, 14.527009472, 15.561807829, 16.601455013, 17.643573243, 18.680854198, 19.719860599, 20.772568776, 21.833555941, 22.908541556, 24], False, 3, [1, 1, 1, 1, 1, 1, 1, 1, 1, 1, 1, 1, 1, 1, 1, 1, 1, 1, 1, 1, 1, 1, 1, 1, 1, 1, 1], False), False)
sketch3.addGeometry(Part.BSplineCurve([App.Vector(20.710769, -2.891967, 0), App.Vector(20.710394, -2.861202, 0), App.Vector(20.709645, -2.79975, 0), App.Vector(20.700079, -2.708472, 0), App.Vector(20.686323, -2.618151, 0), App.Vector(20.666418, -2.528957, 0), App.Vector(20.641192, -2.440718, 0), App.Vector(20.609636, -2.353741, 0), App.Vector(20.572847, -2.267862, 0), App.Vector(20.530336, -2.183892, 0), App.Vector(20.483636, -2.102484, 0), App.Vector(20.431885, -2.025598, 0), App.Vector(20.376741, -1.952742, 0), App.Vector(20.316823, -1.885286, 0), App.Vector(20.252675, -1.822843, 0), App.Vector(20.185489, -1.763925, 0), App.Vector(20.11343, -1.710606, 0), App.Vector(20.037823, -1.662445, 0), App.Vector(19.959998, -1.619481, 0), App.Vector(19.880702, -1.581555, 0), App.Vector(19.800198, -1.549717, 0), App.Vector(19.718386, -1.524526, 0), App.Vector(19.635899, -1.503742, 0), App.Vector(19.552166, -1.489121, 0), App.Vector(19.467096, -1.480879, 0), App.Vector(19.41013, -1.479453, 0), App.Vector(19.381492, -1.478736, 0)], [4, 1, 1, 1, 1, 1, 1, 1, 1, 1, 1, 1, 1, 1, 1, 1, 1, 1, 1, 1, 1, 1, 1, 1, 4], [0, 1.02818874, 2.053710826, 3.065248034, 4.081641283, 5.106893873, 6.131558223, 7.173050175, 8.228653731, 9.27666206, 10.308777013, 11.325269123, 12.329503258, 13.32196095, 14.316845687, 15.314881793, 16.315733098, 17.311955233, 18.285320748, 19.252783886, 20.203351036, 21.145449891, 22.095197417, 23.042428769, 24], False, 3, [1, 1, 1, 1, 1, 1, 1, 1, 1, 1, 1, 1, 1, 1, 1, 1, 1, 1, 1, 1, 1, 1, 1, 1, 1, 1, 1], False), False)
sketch3.addGeometry(Part.BSplineCurve([App.Vector(20.181603, -4.083864, 0), App.Vector(20.223178, -4.039669, 0), App.Vector(20.305337, -3.952333, 0), App.Vector(20.411936, -3.809948, 0), App.Vector(20.503254, -3.661391, 0), App.Vector(20.577555, -3.507437, 0), App.Vector(20.636839, -3.3519, 0), App.Vector(20.679047, -3.196843, 0), App.Vector(20.705964, -3.043857, 0), App.Vector(20.709183, -2.942105, 0), App.Vector(20.710769, -2.891967, 0)], [4, 1, 1, 1, 1, 1, 1, 1, 4], [0, 1.08915593, 2.152340314, 3.188132944, 4.216796309, 5.218260357, 6.173443236, 7.099959455, 8], False, 3, [1, 1, 1, 1, 1, 1, 1, 1, 1, 1, 1], False), False)
sketch3.addConstraint(Sketcher.Constraint("Block", 15))
sketch3.addConstraint(Sketcher.Constraint("Block", 16))
sketch3.addConstraint(Sketcher.Constraint("Block", 17))
sketch3.addConstraint(Sketcher.Constraint("Block", 21))
sketch3.addConstraint(Sketcher.Constraint("Block", 22))
sketch3.addConstraint(Sketcher.Constraint("Block", 23))
sketch3.addConstraint(Sketcher.Constraint("Block", 24))
sketch3.addConstraint(Sketcher.Constraint("Block", 39))
sketch3.addConstraint(Sketcher.Constraint("Block", 40))
sketch3.addConstraint(Sketcher.Constraint("Block", 41))
sketch3.addConstraint(Sketcher.Constraint("Block", 42))
sketch3.addConstraint(Sketcher.Constraint("Block", 43))
sketch3.addConstraint(Sketcher.Constraint("Block", 47))
sketch3.addConstraint(Sketcher.Constraint("Block", 48))
sketch3.addConstraint(Sketcher.Constraint("Block", 49))
sketch3.addConstraint(Sketcher.Constraint("Block", 50))
sketch3.addConstraint(Sketcher.Constraint("Coincident", 0, 2, 1, 1))
sketch3.addConstraint(Sketcher.Constraint("Coincident", 1, 2, 2, 1))
sketch3.addConstraint(Sketcher.Constraint("Coincident", 2, 2, 3, 1))
sketch3.addConstraint(Sketcher.Constraint("Coincident", 3, 2, 4, 1))
sketch3.addConstraint(Sketcher.Constraint("Coincident", 4, 2, 5, 1))
sketch3.addConstraint(Sketcher.Constraint("Coincident", 5, 2, 6, 1))
sketch3.addConstraint(Sketcher.Constraint("Coincident", 6, 2, 7, 1))
sketch3.addConstraint(Sketcher.Constraint("Coincident", 7, 2, 8, 1))
sketch3.addConstraint(Sketcher.Constraint("Coincident", 8, 2, 9, 1))
sketch3.addConstraint(Sketcher.Constraint("Coincident", 9, 2, 0, 1))
sketch3.addConstraint(Sketcher.Constraint("Coincident", 10, 2, 11, 1))
sketch3.addConstraint(Sketcher.Constraint("Coincident", 11, 2, 12, 1))
sketch3.addConstraint(Sketcher.Constraint("Coincident", 12, 2, 10, 1))
sketch3.addConstraint(Sketcher.Constraint("Coincident", 13, 2, 14, 1))
sketch3.addConstraint(Sketcher.Constraint("Coincident", 14, 2, 15, 2))
sketch3.addConstraint(Sketcher.Constraint("Coincident", 17, 1, 18, 1))
sketch3.addConstraint(Sketcher.Constraint("Coincident", 18, 2, 13, 1))
sketch3.addConstraint(Sketcher.Constraint("Coincident", 19, 2, 20, 1))
sketch3.addConstraint(Sketcher.Constraint("Coincident", 20, 2, 21, 2))
sketch3.addConstraint(Sketcher.Constraint("Coincident", 24, 1, 25, 1))
sketch3.addConstraint(Sketcher.Constraint("Coincident", 25, 2, 19, 1))
sketch3.addConstraint(Sketcher.Constraint("Coincident", 26, 2, 27, 1))
sketch3.addConstraint(Sketcher.Constraint("Coincident", 27, 2, 28, 1))
sketch3.addConstraint(Sketcher.Constraint("Coincident", 28, 2, 29, 1))
sketch3.addConstraint(Sketcher.Constraint("Coincident", 29, 2, 30, 1))
sketch3.addConstraint(Sketcher.Constraint("Coincident", 30, 2, 31, 1))
sketch3.addConstraint(Sketcher.Constraint("Coincident", 31, 2, 32, 1))
sketch3.addConstraint(Sketcher.Constraint("Coincident", 32, 2, 33, 1))
sketch3.addConstraint(Sketcher.Constraint("Coincident", 33, 2, 34, 1))
sketch3.addConstraint(Sketcher.Constraint("Coincident", 34, 2, 35, 1))
sketch3.addConstraint(Sketcher.Constraint("Coincident", 35, 2, 36, 1))
sketch3.addConstraint(Sketcher.Constraint("Coincident", 36, 2, 37, 1))
sketch3.addConstraint(Sketcher.Constraint("Coincident", 37, 2, 26, 1))
sketch3.addConstraint(Sketcher.Constraint("Coincident", 38, 2, 39, 2))
sketch3.addConstraint(Sketcher.Constraint("Coincident", 43, 1, 44, 1))
sketch3.addConstraint(Sketcher.Constraint("Coincident", 44, 2, 45, 1))
sketch3.addConstraint(Sketcher.Constraint("Coincident", 45, 2, 46, 1))
sketch3.addConstraint(Sketcher.Constraint("Coincident", 46, 2, 47, 2))
sketch3.addConstraint(Sketcher.Constraint("Coincident", 50, 1, 38, 1))
sketch3.addConstraint(Sketcher.Constraint("Vertical", 0))
sketch3.addConstraint(Sketcher.Constraint("Vertical", 2))
sketch3.addConstraint(Sketcher.Constraint("Horizontal", 3))
sketch3.addConstraint(Sketcher.Constraint("Vertical", 4))
sketch3.addConstraint(Sketcher.Constraint("Horizontal", 5))
sketch3.addConstraint(Sketcher.Constraint("Vertical", 6))
sketch3.addConstraint(Sketcher.Constraint("Horizontal", 7))
sketch3.addConstraint(Sketcher.Constraint("Vertical", 8))
sketch3.addConstraint(Sketcher.Constraint("Horizontal", 9))
sketch3.addConstraint(Sketcher.Constraint("Vertical", 10))
sketch3.addConstraint(Sketcher.Constraint("Horizontal", 12))
sketch3.addConstraint(Sketcher.Constraint("Horizontal", 13))
sketch3.addConstraint(Sketcher.Constraint("Vertical", 14))
sketch3.addConstraint(Sketcher.Constraint("Vertical", 18))
sketch3.addConstraint(Sketcher.Constraint("Horizontal", 19))
sketch3.addConstraint(Sketcher.Constraint("Vertical", 20))
sketch3.addConstraint(Sketcher.Constraint("Vertical", 25))
sketch3.addConstraint(Sketcher.Constraint("Vertical", 26))
sketch3.addConstraint(Sketcher.Constraint("Horizontal", 27))
sketch3.addConstraint(Sketcher.Constraint("Vertical", 28))
sketch3.addConstraint(Sketcher.Constraint("Horizontal", 29))
sketch3.addConstraint(Sketcher.Constraint("Vertical", 30))
sketch3.addConstraint(Sketcher.Constraint("Horizontal", 31))
sketch3.addConstraint(Sketcher.Constraint("Vertical", 32))
sketch3.addConstraint(Sketcher.Constraint("Horizontal", 33))
sketch3.addConstraint(Sketcher.Constraint("Vertical", 34))
sketch3.addConstraint(Sketcher.Constraint("Horizontal", 35))
sketch3.addConstraint(Sketcher.Constraint("Vertical", 36))
sketch3.addConstraint(Sketcher.Constraint("Horizontal", 37))
sketch3.addConstraint(Sketcher.Constraint("Vertical", 44))
sketch3.addConstraint(Sketcher.Constraint("Horizontal", 45))
sketch3.addConstraint(Sketcher.Constraint("Vertical", 46))
sketch3.addConstraint(Sketcher.Constraint("DistanceX", -1, 1, 3, 2, Q("0.7 in")))
sketch3.addConstraint(Sketcher.Constraint("DistanceX", -1, 1, 27, 2, Q("0.7 in")))
sketch3.addConstraint(Sketcher.Constraint("DistanceX", 27, 2, 27, 1, Q("0.125 in")))
sketch3.addConstraint(Sketcher.Constraint("DistanceY", 28, 2, 25, 2, Q("0.1875 in")))
sketch3.addConstraint(Sketcher.Constraint("DistanceX", 7, 1, 7, 2, 0.325641))
sketch3.addConstraint(Sketcher.Constraint("DistanceX", 29, 1, 29, 2, 0.325641))
sketch3.addConstraint(Sketcher.Constraint("DistanceX", 33, 1, 33, 2, 0.325641))
sketch3.addConstraint(Sketcher.Constraint("DistanceX", 37, 1, 37, 2, 0.325641))
sketch3.addConstraint(Sketcher.Constraint("DistanceY", 2, 2, 2, 1, 1.50609))
sketch3.addConstraint(Sketcher.Constraint("DistanceY", 14, 2, 14, 1, 0.983919))
sketch3.addConstraint(Sketcher.Constraint("DistanceY", 25, 1, 25, 2, 0.364438))
sketch3.addConstraint(Sketcher.Constraint("DistanceY", 30, 1, 30, 2, 1.50609))
sketch3.addConstraint(Sketcher.Constraint("DistanceY", 32, 2, 32, 1, 1.50609))
sketch3.addConstraint(Sketcher.Constraint("DistanceY", 34, 1, 34, 2, 1.50609))
sketch3.addConstraint(Sketcher.Constraint("DistanceY", 36, 2, 36, 1, 1.50609))
sketch3.addConstraint(Sketcher.Constraint("DistanceY", 44, 1, 44, 2, 1.343269))
sketch3.addConstraint(Sketcher.Constraint("Distance", 1, 3.061528))
sketch3.addConstraint(Sketcher.Constraint("Distance", 11, 1.67242))
sketch3.addConstraint(Sketcher.Constraint("DistanceX", 3, 2, 3, 1, 0.732692))
sketch3.addConstraint(Sketcher.Constraint("DistanceX", 5, 1, 5, 2, 0.732692))
sketch3.addConstraint(Sketcher.Constraint("DistanceX", 9, 1, 9, 2, 2.198077))
sketch3.addConstraint(Sketcher.Constraint("DistanceX", 12, 2, 12, 1, 1.378886))
sketch3.addConstraint(Sketcher.Constraint("DistanceX", 31, 1, 31, 2, 1.221154))
sketch3.addConstraint(Sketcher.Constraint("DistanceY", 0, 1, 0, 2, 0.057878))
sketch3.addConstraint(Sketcher.Constraint("DistanceY", 4, 2, 4, 1, 0.284936))
sketch3.addConstraint(Sketcher.Constraint("DistanceY", 6, 2, 6, 1, 0.366346))
sketch3.addConstraint(Sketcher.Constraint("DistanceY", 26, 1, 26, 2, 1.791026))
sketch3.addConstraint(Sketcher.Constraint("DistanceY", -1, 1, 4, 2, 6.418059))
sketch3.addConstraint(Sketcher.Constraint("DistanceY", -1, 1, 10, 2, 7.649389))
sketch3.addConstraint(Sketcher.Constraint("DistanceX", -1, 1, 11, 2, 20.21722))
pocket2 = doc.addObject("PartDesign::Pocket", "Pocket001")
body.addObject(pocket2)
pocket2.Profile = sketch3
pocket2.Length = Q("0.1 in")

doc.recompute()
